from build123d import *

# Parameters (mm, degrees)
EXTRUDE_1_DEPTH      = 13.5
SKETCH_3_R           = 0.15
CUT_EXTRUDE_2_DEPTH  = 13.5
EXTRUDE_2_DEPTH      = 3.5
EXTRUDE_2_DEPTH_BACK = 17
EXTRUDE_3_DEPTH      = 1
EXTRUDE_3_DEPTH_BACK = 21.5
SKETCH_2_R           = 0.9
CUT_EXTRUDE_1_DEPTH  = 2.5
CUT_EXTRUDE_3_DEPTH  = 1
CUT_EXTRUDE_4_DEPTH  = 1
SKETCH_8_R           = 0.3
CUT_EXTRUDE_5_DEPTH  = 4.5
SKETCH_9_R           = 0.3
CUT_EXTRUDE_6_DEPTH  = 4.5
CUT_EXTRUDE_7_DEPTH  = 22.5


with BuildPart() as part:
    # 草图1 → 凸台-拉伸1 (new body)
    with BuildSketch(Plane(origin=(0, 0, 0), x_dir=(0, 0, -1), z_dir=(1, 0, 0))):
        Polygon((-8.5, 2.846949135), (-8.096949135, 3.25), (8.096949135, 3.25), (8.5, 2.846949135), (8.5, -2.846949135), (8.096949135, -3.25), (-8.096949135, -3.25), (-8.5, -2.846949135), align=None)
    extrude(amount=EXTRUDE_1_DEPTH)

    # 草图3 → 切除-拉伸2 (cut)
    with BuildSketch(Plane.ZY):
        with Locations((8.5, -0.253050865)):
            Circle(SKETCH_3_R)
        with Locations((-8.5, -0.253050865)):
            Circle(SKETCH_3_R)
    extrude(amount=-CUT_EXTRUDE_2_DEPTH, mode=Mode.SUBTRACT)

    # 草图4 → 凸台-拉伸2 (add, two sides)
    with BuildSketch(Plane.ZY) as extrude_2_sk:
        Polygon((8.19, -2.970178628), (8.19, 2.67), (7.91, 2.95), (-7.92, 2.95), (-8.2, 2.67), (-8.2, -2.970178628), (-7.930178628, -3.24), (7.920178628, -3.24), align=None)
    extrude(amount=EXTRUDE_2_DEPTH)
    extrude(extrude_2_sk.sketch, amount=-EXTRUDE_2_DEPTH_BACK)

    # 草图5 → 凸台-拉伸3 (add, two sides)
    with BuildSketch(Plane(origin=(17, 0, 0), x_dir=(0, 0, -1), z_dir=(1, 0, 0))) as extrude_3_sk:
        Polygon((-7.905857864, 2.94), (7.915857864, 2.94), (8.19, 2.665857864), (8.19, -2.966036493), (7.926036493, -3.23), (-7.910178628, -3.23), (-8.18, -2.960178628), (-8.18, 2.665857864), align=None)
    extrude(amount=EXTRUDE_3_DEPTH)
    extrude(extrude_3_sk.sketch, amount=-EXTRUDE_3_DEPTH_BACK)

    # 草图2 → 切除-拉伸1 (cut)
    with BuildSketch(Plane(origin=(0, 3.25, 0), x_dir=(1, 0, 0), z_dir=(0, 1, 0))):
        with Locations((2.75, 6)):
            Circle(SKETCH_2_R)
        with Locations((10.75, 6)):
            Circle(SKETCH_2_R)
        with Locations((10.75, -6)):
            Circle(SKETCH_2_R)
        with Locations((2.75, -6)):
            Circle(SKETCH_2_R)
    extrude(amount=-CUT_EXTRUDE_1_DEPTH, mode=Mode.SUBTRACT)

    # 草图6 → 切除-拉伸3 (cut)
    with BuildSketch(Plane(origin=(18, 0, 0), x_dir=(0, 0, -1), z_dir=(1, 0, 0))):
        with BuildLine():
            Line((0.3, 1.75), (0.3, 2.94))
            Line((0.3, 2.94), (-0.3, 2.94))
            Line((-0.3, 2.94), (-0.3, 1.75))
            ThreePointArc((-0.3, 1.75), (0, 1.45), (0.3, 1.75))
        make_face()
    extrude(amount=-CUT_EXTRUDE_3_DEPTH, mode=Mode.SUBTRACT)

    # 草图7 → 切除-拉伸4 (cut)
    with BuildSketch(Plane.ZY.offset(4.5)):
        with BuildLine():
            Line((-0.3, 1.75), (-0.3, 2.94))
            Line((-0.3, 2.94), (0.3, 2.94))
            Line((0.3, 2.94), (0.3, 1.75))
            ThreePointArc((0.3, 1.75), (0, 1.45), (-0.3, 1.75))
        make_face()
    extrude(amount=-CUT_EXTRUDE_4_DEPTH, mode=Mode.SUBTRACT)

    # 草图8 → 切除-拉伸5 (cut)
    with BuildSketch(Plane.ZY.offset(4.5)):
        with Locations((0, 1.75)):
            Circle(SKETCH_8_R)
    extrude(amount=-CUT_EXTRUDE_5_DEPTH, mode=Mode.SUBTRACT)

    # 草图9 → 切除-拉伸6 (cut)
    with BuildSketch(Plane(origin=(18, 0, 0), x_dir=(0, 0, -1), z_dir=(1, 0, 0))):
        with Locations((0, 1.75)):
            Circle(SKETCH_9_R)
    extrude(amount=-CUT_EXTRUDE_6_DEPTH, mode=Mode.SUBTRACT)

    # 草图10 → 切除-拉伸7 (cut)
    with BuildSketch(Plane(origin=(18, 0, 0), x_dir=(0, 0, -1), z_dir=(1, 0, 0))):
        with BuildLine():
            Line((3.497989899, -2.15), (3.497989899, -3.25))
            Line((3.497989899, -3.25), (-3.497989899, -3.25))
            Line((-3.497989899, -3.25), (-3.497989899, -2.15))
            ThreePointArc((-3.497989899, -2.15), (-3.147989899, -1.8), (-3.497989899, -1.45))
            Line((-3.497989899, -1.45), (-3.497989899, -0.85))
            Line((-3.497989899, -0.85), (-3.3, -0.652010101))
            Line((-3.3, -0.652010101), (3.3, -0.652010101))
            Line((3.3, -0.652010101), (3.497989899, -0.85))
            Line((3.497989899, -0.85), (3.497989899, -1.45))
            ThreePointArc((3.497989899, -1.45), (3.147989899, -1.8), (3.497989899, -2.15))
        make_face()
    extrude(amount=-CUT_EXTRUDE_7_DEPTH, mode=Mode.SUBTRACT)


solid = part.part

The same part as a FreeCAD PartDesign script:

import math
import FreeCAD as App
import Part
import Sketcher
from FreeCAD import Vector
Q = App.Units.Quantity


def add_polygon(sketch, points):
    """Adds a closed chain of lines whose ends are joined by coincident constraints."""
    first, n = sketch.GeometryCount, len(points)
    for a, b in zip(points, points[1:] + points[:1]):
        sketch.addGeometry(Part.LineSegment(App.Vector(*a, 0), App.Vector(*b, 0)), False)
    for i in range(n):
        sketch.addConstraint(Sketcher.Constraint("Coincident", first + i, 2, first + (i + 1) % n, 1))

doc = App.newDocument("Part")
params = doc.addObject("Spreadsheet::Sheet", "Params")
for row, (alias, value) in enumerate([
    ("sketch1_length", "0.57 mm"),
    ("pad1_length", "13.5 mm"),
    ("sketch2_diameter", "0.3 mm"),
    ("pocket1_length", "13.5 mm"),
    ("sketch3_height", "15.83 mm"),
    ("pad2_length", "3.5 mm"),
    ("pad2_length2", "17 mm"),
    ("pad3_length", "1 mm"),
    ("pad3_length2", "21.5 mm"),
    ("sketch5_diameter", "1.8 mm"),
    ("pocket2_length", "2.5 mm"),
    ("sketch6_radius", "0.3 mm"),
    ("sketch6_width", "1.19 mm"),
    ("pocket3_length", "1 mm"),
    ("sketch7_radius", "0.3 mm"),
    ("sketch7_width", "1.19 mm"),
    ("pocket4_length", "1 mm"),
    ("sketch8_diameter", "0.6 mm"),
    ("pocket5_length", "4.5 mm"),
    ("sketch9_diameter", "0.6 mm"),
    ("pocket6_length", "4.5 mm"),
    ("sketch10_radius", "0.35 mm"),
    ("sketch10_width", "1.1 mm"),
    ("sketch10_width2", "0.6 mm"),
    ("sketch10_height", "6.6 mm"),
    ("sketch10_length", "0.28 mm"),
    ("pocket7_length", "22.5 mm"),
], start=1):
    params.set(f"A{row}", alias)
    params.set(f"B{row}", "=" + value)
    params.setAlias(f"B{row}", alias)

body = doc.addObject("PartDesign::Body", "Body")

# Sketch on YZ plane
sketch1 = doc.addObject("Sketcher::SketchObject", "Sketch")
body.addObject(sketch1)
sketch1.AttachmentSupport = (doc.YZ_Plane, [""])
sketch1.MapMode = "FlatFace"
add_polygon(sketch1, [(3.25, 8.096949), (2.846949, 8.5), (-2.846949, 8.5), (-3.25, 8.096949), (-3.25, -8.096949), (-2.846949, -8.5), (2.846949, -8.5), (3.25, -8.096949)])  # lines 0-7
sketch1.addConstraint(Sketcher.Constraint("Horizontal", 1))
sketch1.addConstraint(Sketcher.Constraint("Vertical", 3))
sketch1.addConstraint(Sketcher.Constraint("Horizontal", 5))
sketch1.addConstraint(Sketcher.Constraint("Vertical", 7))
sketch1.addConstraint(Sketcher.Constraint("Symmetric", 0, 2, 4, 2, -1, 1))
sketch1.addConstraint(Sketcher.Constraint("Symmetric", 2, 2, 6, 2, -1, 1))
sketch1.addConstraint(Sketcher.Constraint("Perpendicular", 0, 2))
sketch1.addConstraint(Sketcher.Constraint("Perpendicular", 2, 4))
sketch1.addConstraint(Sketcher.Constraint("Perpendicular", 4, 6))
sketch1.addConstraint(Sketcher.Constraint("Horizontal", 3, 2, 6, 2))
sketch1.addConstraint(Sketcher.Constraint("Vertical", 1, 2, 4, 2))
sketch1.addConstraint(Sketcher.Constraint("DistanceY", 4, 2, 1, 2, Q("17 mm")))
sketch1.addConstraint(Sketcher.Constraint("DistanceX", 3, 2, 6, 2, Q("6.5 mm")))
sketch1.addConstraint(Sketcher.Constraint("Distance", 0, Q("0.57 mm")))
sketch1.setExpression("Constraints[21]", "Params.sketch1_length")
pad1 = doc.addObject("PartDesign::Pad", "Pad")
body.addObject(pad1)
pad1.Profile = sketch1
pad1.setExpression("Length", "Params.pad1_length")

# Sketch on YZ plane
sketch2 = doc.addObject("Sketcher::SketchObject", "Sketch001")
body.addObject(sketch2)
sketch2.AttachmentSupport = (doc.YZ_Plane, [""])
sketch2.MapMode = "FlatFace"
sketch2.addGeometry(Part.Circle(Vector(-0.253051, 8.5, 0), Vector(0, 0, 1), 0.15), False)
sketch2.addGeometry(Part.Circle(Vector(-0.253051, -8.5, 0), Vector(0, 0, 1), 0.15), False)
sketch2.addConstraint(Sketcher.Constraint("Equal", 0, 1))
sketch2.addConstraint(Sketcher.Constraint("Symmetric", 0, 3, 1, 3, -1))
sketch2.addConstraint(Sketcher.Constraint("Diameter", 0, Q("0.3 mm")))
sketch2.addConstraint(Sketcher.Constraint("DistanceY", 1, 3, 0, 3, Q("17 mm")))
sketch2.addConstraint(Sketcher.Constraint("DistanceX", 0, 3, -1, 1, Q("0.253051 mm")))
sketch2.setExpression("Constraints[2]", "Params.sketch2_diameter")
pocket1 = doc.addObject("PartDesign::Pocket", "Pocket")
body.addObject(pocket1)
pocket1.Profile = sketch2
pocket1.setExpression("Length", "Params.pocket1_length")
pocket1.Reversed = True

# Sketch on YZ plane
sketch3 = doc.addObject("Sketcher::SketchObject", "Sketch002")
body.addObject(sketch3)
sketch3.AttachmentSupport = (doc.YZ_Plane, [""])
sketch3.MapMode = "FlatFace"
add_polygon(sketch3, [(-2.970179, 8.19), (2.67, 8.19), (2.95, 7.91), (2.95, -7.92), (2.67, -8.2), (-2.970179, -8.2), (-3.24, -7.930179), (-3.24, 7.920179)])  # lines 0-7
sketch3.addConstraint(Sketcher.Constraint("Horizontal", 0))
sketch3.addConstraint(Sketcher.Constraint("Vertical", 2))
sketch3.addConstraint(Sketcher.Constraint("Horizontal", 4))
sketch3.addConstraint(Sketcher.Constraint("Vertical", 6))
sketch3.addConstraint(Sketcher.Constraint("Perpendicular", 1, 3))
sketch3.addConstraint(Sketcher.Constraint("Perpendicular", 3, 5))
sketch3.addConstraint(Sketcher.Constraint("Perpendicular", 5, 7))
sketch3.addConstraint(Sketcher.Constraint("Vertical", 0, 2, 3, 2))
sketch3.addConstraint(Sketcher.Constraint("Vertical", 4, 2, 7, 2))
sketch3.addConstraint(Sketcher.Constraint("Equal", 1, 3))
sketch3.addConstraint(Sketcher.Constraint("DistanceY", 2, 2, 2, 1, Q("15.83 mm")))
sketch3.addConstraint(Sketcher.Constraint("DistanceY", 3, 2, -1, 1, Q("8.2 mm")))
sketch3.addConstraint(Sketcher.Constraint("DistanceX", -1, 1, 0, 2, Q("2.67 mm")))
sketch3.addConstraint(Sketcher.Constraint("DistanceY", -1, 1, 0, 2, Q("8.19 mm")))
sketch3.addConstraint(Sketcher.Constraint("DistanceX", 5, 2, -1, 1, Q("3.24 mm")))
sketch3.addConstraint(Sketcher.Constraint("DistanceX", 0, 1, 0, 2, Q("5.640179 mm")))
sketch3.setExpression("Constraints[18]", "Params.sketch3_height")
pad2 = doc.addObject("PartDesign::Pad", "Pad001")
body.addObject(pad2)
pad2.Profile = sketch3
pad2.Type = "TwoLengths"
pad2.setExpression("Length", "Params.pad2_length")
pad2.setExpression("Length2", "Params.pad2_length2")
pad2.Reversed = True

# Sketch on YZ plane
sketch4 = doc.addObject("Sketcher::SketchObject", "Sketch003")
body.addObject(sketch4)
sketch4.AttachmentSupport = (doc.YZ_Plane, [""])
sketch4.MapMode = "FlatFace"
sketch4.AttachmentOffset = App.Placement(Vector(0, 0, 17), App.Rotation())
add_polygon(sketch4, [(2.94, -7.915858), (2.94, 7.905858), (2.665858, 8.18), (-2.960179, 8.18), (-3.23, 7.910179), (-3.23, -7.926036), (-2.966036, -8.19), (2.665858, -8.19)])  # lines 0-7
sketch4.addConstraint(Sketcher.Constraint("Vertical", 0))
sketch4.addConstraint(Sketcher.Constraint("Horizontal", 2))
sketch4.addConstraint(Sketcher.Constraint("Vertical", 4))
sketch4.addConstraint(Sketcher.Constraint("Horizontal", 6))
sketch4.addConstraint(Sketcher.Constraint("Perpendicular", 1, 3))
sketch4.addConstraint(Sketcher.Constraint("Perpendicular", 3, 5))
sketch4.addConstraint(Sketcher.Constraint("Perpendicular", 5, 7))
sketch4.addConstraint(Sketcher.Constraint("Vertical", 1, 2, 6, 2))
sketch4.addConstraint(Sketcher.Constraint("Equal", 1, 7))
sketch4.addConstraint(Sketcher.Constraint("DistanceX", -1, 1, 0, 2, Q("2.94 mm")))
sketch4.addConstraint(Sketcher.Constraint("DistanceY", -1, 1, 1, 2, Q("8.18 mm")))
sketch4.addConstraint(Sketcher.Constraint("DistanceX", 3, 2, -1, 1, Q("3.23 mm")))
sketch4.addConstraint(Sketcher.Constraint("DistanceY", 5, 2, -1, 1, Q("8.19 mm")))
sketch4.addConstraint(Sketcher.Constraint("Distance", 5, Q("0.373301 mm")))
sketch4.addConstraint(Sketcher.Constraint("DistanceX", 2, 2, 2, 1, Q("5.626036 mm")))
sketch4.addConstraint(Sketcher.Constraint("DistanceX", 6, 1, 6, 2, Q("5.631894 mm")))
pad3 = doc.addObject("PartDesign::Pad", "Pad002")
body.addObject(pad3)
pad3.Profile = sketch4
pad3.Type = "TwoLengths"
pad3.setExpression("Length", "Params.pad3_length")
pad3.setExpression("Length2", "Params.pad3_length2")

# Sketch on XZ plane
sketch5 = doc.addObject("Sketcher::SketchObject", "Sketch004")
body.addObject(sketch5)
sketch5.AttachmentSupport = (doc.XZ_Plane, [""])
sketch5.MapMode = "FlatFace"
sketch5.AttachmentOffset = App.Placement(Vector(0, 0, -3.25), App.Rotation())
sketch5.addGeometry(Part.Circle(Vector(2.75, -6, 0), Vector(0, 0, 1), 0.9), False)
sketch5.addGeometry(Part.Circle(Vector(10.75, -6, 0), Vector(0, 0, 1), 0.9), False)
sketch5.addGeometry(Part.Circle(Vector(10.75, 6, 0), Vector(0, 0, 1), 0.9), False)
sketch5.addGeometry(Part.Circle(Vector(2.75, 6, 0), Vector(0, 0, 1), 0.9), False)
sketch5.addConstraint(Sketcher.Constraint("Equal", 0, 1))
sketch5.addConstraint(Sketcher.Constraint("Equal", 1, 2))
sketch5.addConstraint(Sketcher.Constraint("Equal", 2, 3))
sketch5.addConstraint(Sketcher.Constraint("Symmetric", 1, 3, 2, 3, -1))
sketch5.addConstraint(Sketcher.Constraint("Symmetric", 0, 3, 3, 3, -1))
sketch5.addConstraint(Sketcher.Constraint("Horizontal", 0, 3, 1, 3))
sketch5.addConstraint(Sketcher.Constraint("Diameter", 0, Q("1.8 mm")))
sketch5.addConstraint(Sketcher.Constraint("DistanceY", 0, 3, -1, 1, Q("6 mm")))
sketch5.addConstraint(Sketcher.Constraint("DistanceX", 0, 3, 1, 3, Q("8 mm")))
sketch5.addConstraint(Sketcher.Constraint("DistanceX", -1, 1, 0, 3, Q("2.75 mm")))
sketch5.setExpression("Constraints[6]", "Params.sketch5_diameter")
pocket2 = doc.addObject("PartDesign::Pocket", "Pocket001")
body.addObject(pocket2)
pocket2.Profile = sketch5
pocket2.setExpression("Length", "Params.pocket2_length")
pocket2.Reversed = True

# Sketch on YZ plane
sketch6 = doc.addObject("Sketcher::SketchObject", "Sketch005")
body.addObject(sketch6)
sketch6.AttachmentSupport = (doc.YZ_Plane, [""])
sketch6.MapMode = "FlatFace"
sketch6.AttachmentOffset = App.Placement(Vector(0, 0, 18), App.Rotation())
sketch6.addGeometry(Part.LineSegment(Vector(1.75, -0.3, 0), Vector(2.94, -0.3, 0)), False)
sketch6.addGeometry(Part.LineSegment(Vector(2.94, -0.3, 0), Vector(2.94, 0.3, 0)), False)
sketch6.addGeometry(Part.LineSegment(Vector(2.94, 0.3, 0), Vector(1.75, 0.3, 0)), False)
sketch6.addGeometry(Part.ArcOfCircle(Part.Circle(Vector(1.75, 0, 0), Vector(0, 0, 1), 0.3), math.radians(90), math.radians(270)), False)
sketch6.addConstraint(Sketcher.Constraint("Coincident", 0, 2, 1, 1))
sketch6.addConstraint(Sketcher.Constraint("Coincident", 1, 2, 2, 1))
sketch6.addConstraint(Sketcher.Constraint("Tangent", 2, 2, 3, 1))
sketch6.addConstraint(Sketcher.Constraint("Tangent", 3, 2, 0, 1))
sketch6.addConstraint(Sketcher.Constraint("Horizontal", 0))
sketch6.addConstraint(Sketcher.Constraint("Vertical", 1))
sketch6.addConstraint(Sketcher.Constraint("Horizontal", 2))
sketch6.addConstraint(Sketcher.Constraint("PointOnObject", 3, 3, -1))
sketch6.addConstraint(Sketcher.Constraint("Radius", 3, Q("0.3 mm")))
sketch6.addConstraint(Sketcher.Constraint("DistanceX", 0, 1, 0, 2, Q("1.19 mm")))
sketch6.addConstraint(Sketcher.Constraint("DistanceX", -1, 1, 3, 3, Q("1.75 mm")))
sketch6.setExpression("Constraints[8]", "Params.sketch6_radius")
sketch6.setExpression("Constraints[9]", "Params.sketch6_width")
pocket3 = doc.addObject("PartDesign::Pocket", "Pocket002")
body.addObject(pocket3)
pocket3.Profile = sketch6
pocket3.setExpression("Length", "Params.pocket3_length")

# Sketch on YZ plane
sketch7 = doc.addObject("Sketcher::SketchObject", "Sketch006")
body.addObject(sketch7)
sketch7.AttachmentSupport = (doc.YZ_Plane, [""])
sketch7.MapMode = "FlatFace"
sketch7.AttachmentOffset = App.Placement(Vector(0, 0, -4.5), App.Rotation())
sketch7.addGeometry(Part.LineSegment(Vector(2.94, -0.3, 0), Vector(1.75, -0.3, 0)), False)
sketch7.addGeometry(Part.ArcOfCircle(Part.Circle(Vector(1.75, 0, 0), Vector(0, 0, 1), 0.3), math.radians(90), math.radians(270)), False)
sketch7.addGeometry(Part.LineSegment(Vector(1.75, 0.3, 0), Vector(2.94, 0.3, 0)), False)
sketch7.addGeometry(Part.LineSegment(Vector(2.94, 0.3, 0), Vector(2.94, -0.3, 0)), False)
sketch7.addConstraint(Sketcher.Constraint("Tangent", 0, 2, 1, 2))
sketch7.addConstraint(Sketcher.Constraint("Tangent", 1, 1, 2, 1))
sketch7.addConstraint(Sketcher.Constraint("Coincident", 2, 2, 3, 1))
sketch7.addConstraint(Sketcher.Constraint("Coincident", 3, 2, 0, 1))
sketch7.addConstraint(Sketcher.Constraint("Horizontal", 0))
sketch7.addConstraint(Sketcher.Constraint("Horizontal", 2))
sketch7.addConstraint(Sketcher.Constraint("Vertical", 3))
sketch7.addConstraint(Sketcher.Constraint("PointOnObject", 1, 3, -1))
sketch7.addConstraint(Sketcher.Constraint("Radius", 1, Q("0.3 mm")))
sketch7.addConstraint(Sketcher.Constraint("DistanceX", 0, 2, 0, 1, Q("1.19 mm")))
sketch7.addConstraint(Sketcher.Constraint("DistanceX", -1, 1, 1, 3, Q("1.75 mm")))
sketch7.setExpression("Constraints[8]", "Params.sketch7_radius")
sketch7.setExpression("Constraints[9]", "Params.sketch7_width")
pocket4 = doc.addObject("PartDesign::Pocket", "Pocket003")
body.addObject(pocket4)
pocket4.Profile = sketch7
pocket4.setExpression("Length", "Params.pocket4_length")
pocket4.Reversed = True

# Sketch on YZ plane
sketch8 = doc.addObject("Sketcher::SketchObject", "Sketch007")
body.addObject(sketch8)
sketch8.AttachmentSupport = (doc.YZ_Plane, [""])
sketch8.MapMode = "FlatFace"
sketch8.AttachmentOffset = App.Placement(Vector(0, 0, -4.5), App.Rotation())
sketch8.addGeometry(Part.Circle(Vector(1.75, 0, 0), Vector(0, 0, 1), 0.3), False)
sketch8.addConstraint(Sketcher.Constraint("PointOnObject", 0, 3, -1))
sketch8.addConstraint(Sketcher.Constraint("Diameter", 0, Q("0.6 mm")))
sketch8.addConstraint(Sketcher.Constraint("DistanceX", -1, 1, 0, 3, Q("1.75 mm")))
sketch8.setExpression("Constraints[1]", "Params.sketch8_diameter")
pocket5 = doc.addObject("PartDesign::Pocket", "Pocket004")
body.addObject(pocket5)
pocket5.Profile = sketch8
pocket5.setExpression("Length", "Params.pocket5_length")
pocket5.Reversed = True

# Sketch on YZ plane
sketch9 = doc.addObject("Sketcher::SketchObject", "Sketch008")
body.addObject(sketch9)
sketch9.AttachmentSupport = (doc.YZ_Plane, [""])
sketch9.MapMode = "FlatFace"
sketch9.AttachmentOffset = App.Placement(Vector(0, 0, 18), App.Rotation())
sketch9.addGeometry(Part.Circle(Vector(1.75, 0, 0), Vector(0, 0, 1), 0.3), False)
sketch9.addConstraint(Sketcher.Constraint("PointOnObject", 0, 3, -1))
sketch9.addConstraint(Sketcher.Constraint("Diameter", 0, Q("0.6 mm")))
sketch9.addConstraint(Sketcher.Constraint("DistanceX", -1, 1, 0, 3, Q("1.75 mm")))
sketch9.setExpression("Constraints[1]", "Params.sketch9_diameter")
pocket6 = doc.addObject("PartDesign::Pocket", "Pocket005")
body.addObject(pocket6)
pocket6.Profile = sketch9
pocket6.setExpression("Length", "Params.pocket6_length")

# Sketch on YZ plane
sketch10 = doc.addObject("Sketcher::SketchObject", "Sketch009")
body.addObject(sketch10)
sketch10.AttachmentSupport = (doc.YZ_Plane, [""])
sketch10.MapMode = "FlatFace"
sketch10.AttachmentOffset = App.Placement(Vector(0, 0, 18), App.Rotation())
sketch10.addGeometry(Part.LineSegment(Vector(-3.25, -3.49799, 0), Vector(-2.15, -3.49799, 0)), False)
sketch10.addGeometry(Part.ArcOfCircle(Part.Circle(Vector(-1.8, -3.49799, 0), Vector(0, 0, 1), 0.35), math.radians(0), math.radians(180)), False)
sketch10.addGeometry(Part.LineSegment(Vector(-1.45, -3.49799, 0), Vector(-0.85, -3.49799, 0)), False)
sketch10.addGeometry(Part.LineSegment(Vector(-0.85, -3.49799, 0), Vector(-0.65201, -3.3, 0)), False)
sketch10.addGeometry(Part.LineSegment(Vector(-0.65201, -3.3, 0), Vector(-0.65201, 3.3, 0)), False)
sketch10.addGeometry(Part.LineSegment(Vector(-0.65201, 3.3, 0), Vector(-0.85, 3.49799, 0)), False)
sketch10.addGeometry(Part.LineSegment(Vector(-0.85, 3.49799, 0), Vector(-1.45, 3.49799, 0)), False)
sketch10.addGeometry(Part.ArcOfCircle(Part.Circle(Vector(-1.8, 3.49799, 0), Vector(0, 0, 1), 0.35), math.radians(180), math.radians(360)), False)
sketch10.addGeometry(Part.LineSegment(Vector(-2.15, 3.49799, 0), Vector(-3.25, 3.49799, 0)), False)
sketch10.addGeometry(Part.LineSegment(Vector(-3.25, 3.49799, 0), Vector(-3.25, -3.49799, 0)), False)
sketch10.addConstraint(Sketcher.Constraint("Coincident", 0, 2, 1, 2))
sketch10.addConstraint(Sketcher.Constraint("Coincident", 1, 1, 2, 1))
sketch10.addConstraint(Sketcher.Constraint("Coincident", 2, 2, 3, 1))
sketch10.addConstraint(Sketcher.Constraint("Coincident", 3, 2, 4, 1))
sketch10.addConstraint(Sketcher.Constraint("Coincident", 4, 2, 5, 1))
sketch10.addConstraint(Sketcher.Constraint("Coincident", 5, 2, 6, 1))
sketch10.addConstraint(Sketcher.Constraint("Coincident", 6, 2, 7, 2))
sketch10.addConstraint(Sketcher.Constraint("Coincident", 7, 1, 8, 1))
sketch10.addConstraint(Sketcher.Constraint("Coincident", 8, 2, 9, 1))
sketch10.addConstraint(Sketcher.Constraint("Coincident", 9, 2, 0, 1))
sketch10.addConstraint(Sketcher.Constraint("Horizontal", 0))
sketch10.addConstraint(Sketcher.Constraint("Horizontal", 2))
sketch10.addConstraint(Sketcher.Constraint("Vertical", 4))
sketch10.addConstraint(Sketcher.Constraint("Horizontal", 6))
sketch10.addConstraint(Sketcher.Constraint("Horizontal", 8))
sketch10.addConstraint(Sketcher.Constraint("Vertical", 9))
sketch10.addConstraint(Sketcher.Constraint("Equal", 1, 7))
sketch10.addConstraint(Sketcher.Constraint("Symmetric", 1, 3, 7, 3, -1))
sketch10.addConstraint(Sketcher.Constraint("Symmetric", 2, 2, 5, 2, -1))
sketch10.addConstraint(Sketcher.Constraint("Perpendicular", 3, 5))
sketch10.addConstraint(Sketcher.Constraint("Horizontal", 1, 3, 0, 2))
sketch10.addConstraint(Sketcher.Constraint("Horizontal", 0, 2, 1, 1))
sketch10.addConstraint(Sketcher.Constraint("Horizontal", 6, 2, 7, 1))
sketch10.addConstraint(Sketcher.Constraint("Equal", 3, 5))
sketch10.addConstraint(Sketcher.Constraint("Radius", 1, Q("0.35 mm")))
sketch10.addConstraint(Sketcher.Constraint("DistanceX", 0, 1, 0, 2, Q("1.1 mm")))
sketch10.addConstraint(Sketcher.Constraint("DistanceX", 2, 1, 2, 2, Q("0.6 mm")))
sketch10.addConstraint(Sketcher.Constraint("DistanceY", 4, 1, 4, 2, Q("6.6 mm")))
sketch10.addConstraint(Sketcher.Constraint("DistanceX", 1, 3, -1, 1, Q("1.8 mm")))
sketch10.addConstraint(Sketcher.Constraint("Distance", 3, Q("0.28 mm")))
sketch10.setExpression("Constraints[24]", "Params.sketch10_radius")
sketch10.setExpression("Constraints[25]", "Params.sketch10_width")
sketch10.setExpression("Constraints[26]", "Params.sketch10_width2")
sketch10.setExpression("Constraints[27]", "Params.sketch10_height")
sketch10.setExpression("Constraints[29]", "Params.sketch10_length")
pocket7 = doc.addObject("PartDesign::Pocket", "Pocket006")
body.addObject(pocket7)
pocket7.Profile = sketch10
pocket7.setExpression("Length", "Params.pocket7_length")

doc.recompute()
